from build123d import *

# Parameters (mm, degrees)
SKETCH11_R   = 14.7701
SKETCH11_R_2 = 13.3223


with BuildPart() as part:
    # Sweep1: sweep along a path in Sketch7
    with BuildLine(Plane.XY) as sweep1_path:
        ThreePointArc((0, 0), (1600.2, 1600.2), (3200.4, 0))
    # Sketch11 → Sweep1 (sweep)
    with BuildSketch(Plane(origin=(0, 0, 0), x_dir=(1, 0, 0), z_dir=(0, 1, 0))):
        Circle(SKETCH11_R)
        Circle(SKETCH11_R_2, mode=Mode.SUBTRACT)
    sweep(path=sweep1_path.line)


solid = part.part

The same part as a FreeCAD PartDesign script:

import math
import FreeCAD as App
import Part
import Sketcher
Q = App.Units.Quantity

doc = App.newDocument("Part")
body = doc.addObject("PartDesign::Body", "Body")

sketch1 = body.newObject("Sketcher::SketchObject", "Sketch")
sketch1.AttachmentSupport = (doc.getObject("XZ_Plane"), [""])
sketch1.MapMode = "FlatFace"
sketch1.addGeometry([
    Part.Circle(App.Vector(0, 0, 0), App.Vector(0, 0, 1), 15),
    Part.Circle(App.Vector(0, 0, 0), App.Vector(0, 0, 1), 13),
], False)
sketch1.addConstraint([
    Sketcher.Constraint("Coincident", 0, 3, -1, 1),
    Sketcher.Constraint("Coincident", 1, 3, -1, 1),
    Sketcher.Constraint("Diameter", 0, Q("1.163 in")),
    Sketcher.Constraint("Diameter", 1, Q("1.049 in")),
])

sketch2 = body.newObject("Sketcher::SketchObject", "Sketch001")
sketch2.AttachmentSupport = (doc.getObject("XY_Plane"), [""])
sketch2.MapMode = "FlatFace"
sketch2.addGeometry(Part.ArcOfCircle(Part.Circle(App.Vector(1600, 0, 0), App.Vector(0, 0, 1), 1600), math.radians(0), math.radians(180)), False)
sketch2.addConstraint([
    Sketcher.Constraint("Coincident", 0, 2, -1, 1),
    Sketcher.Constraint("PointOnObject", 0, 3, -1),
    Sketcher.Constraint("PointOnObject", 0, 1, -1),
    Sketcher.Constraint("Radius", 0, Q("63 in")),
])
doc.recompute()

additivepipe = body.newObject("PartDesign::AdditivePipe", "AdditivePipe")
additivepipe.Profile = sketch1
additivepipe.Spine = (sketch2, ["Edge1"])

doc.recompute()
